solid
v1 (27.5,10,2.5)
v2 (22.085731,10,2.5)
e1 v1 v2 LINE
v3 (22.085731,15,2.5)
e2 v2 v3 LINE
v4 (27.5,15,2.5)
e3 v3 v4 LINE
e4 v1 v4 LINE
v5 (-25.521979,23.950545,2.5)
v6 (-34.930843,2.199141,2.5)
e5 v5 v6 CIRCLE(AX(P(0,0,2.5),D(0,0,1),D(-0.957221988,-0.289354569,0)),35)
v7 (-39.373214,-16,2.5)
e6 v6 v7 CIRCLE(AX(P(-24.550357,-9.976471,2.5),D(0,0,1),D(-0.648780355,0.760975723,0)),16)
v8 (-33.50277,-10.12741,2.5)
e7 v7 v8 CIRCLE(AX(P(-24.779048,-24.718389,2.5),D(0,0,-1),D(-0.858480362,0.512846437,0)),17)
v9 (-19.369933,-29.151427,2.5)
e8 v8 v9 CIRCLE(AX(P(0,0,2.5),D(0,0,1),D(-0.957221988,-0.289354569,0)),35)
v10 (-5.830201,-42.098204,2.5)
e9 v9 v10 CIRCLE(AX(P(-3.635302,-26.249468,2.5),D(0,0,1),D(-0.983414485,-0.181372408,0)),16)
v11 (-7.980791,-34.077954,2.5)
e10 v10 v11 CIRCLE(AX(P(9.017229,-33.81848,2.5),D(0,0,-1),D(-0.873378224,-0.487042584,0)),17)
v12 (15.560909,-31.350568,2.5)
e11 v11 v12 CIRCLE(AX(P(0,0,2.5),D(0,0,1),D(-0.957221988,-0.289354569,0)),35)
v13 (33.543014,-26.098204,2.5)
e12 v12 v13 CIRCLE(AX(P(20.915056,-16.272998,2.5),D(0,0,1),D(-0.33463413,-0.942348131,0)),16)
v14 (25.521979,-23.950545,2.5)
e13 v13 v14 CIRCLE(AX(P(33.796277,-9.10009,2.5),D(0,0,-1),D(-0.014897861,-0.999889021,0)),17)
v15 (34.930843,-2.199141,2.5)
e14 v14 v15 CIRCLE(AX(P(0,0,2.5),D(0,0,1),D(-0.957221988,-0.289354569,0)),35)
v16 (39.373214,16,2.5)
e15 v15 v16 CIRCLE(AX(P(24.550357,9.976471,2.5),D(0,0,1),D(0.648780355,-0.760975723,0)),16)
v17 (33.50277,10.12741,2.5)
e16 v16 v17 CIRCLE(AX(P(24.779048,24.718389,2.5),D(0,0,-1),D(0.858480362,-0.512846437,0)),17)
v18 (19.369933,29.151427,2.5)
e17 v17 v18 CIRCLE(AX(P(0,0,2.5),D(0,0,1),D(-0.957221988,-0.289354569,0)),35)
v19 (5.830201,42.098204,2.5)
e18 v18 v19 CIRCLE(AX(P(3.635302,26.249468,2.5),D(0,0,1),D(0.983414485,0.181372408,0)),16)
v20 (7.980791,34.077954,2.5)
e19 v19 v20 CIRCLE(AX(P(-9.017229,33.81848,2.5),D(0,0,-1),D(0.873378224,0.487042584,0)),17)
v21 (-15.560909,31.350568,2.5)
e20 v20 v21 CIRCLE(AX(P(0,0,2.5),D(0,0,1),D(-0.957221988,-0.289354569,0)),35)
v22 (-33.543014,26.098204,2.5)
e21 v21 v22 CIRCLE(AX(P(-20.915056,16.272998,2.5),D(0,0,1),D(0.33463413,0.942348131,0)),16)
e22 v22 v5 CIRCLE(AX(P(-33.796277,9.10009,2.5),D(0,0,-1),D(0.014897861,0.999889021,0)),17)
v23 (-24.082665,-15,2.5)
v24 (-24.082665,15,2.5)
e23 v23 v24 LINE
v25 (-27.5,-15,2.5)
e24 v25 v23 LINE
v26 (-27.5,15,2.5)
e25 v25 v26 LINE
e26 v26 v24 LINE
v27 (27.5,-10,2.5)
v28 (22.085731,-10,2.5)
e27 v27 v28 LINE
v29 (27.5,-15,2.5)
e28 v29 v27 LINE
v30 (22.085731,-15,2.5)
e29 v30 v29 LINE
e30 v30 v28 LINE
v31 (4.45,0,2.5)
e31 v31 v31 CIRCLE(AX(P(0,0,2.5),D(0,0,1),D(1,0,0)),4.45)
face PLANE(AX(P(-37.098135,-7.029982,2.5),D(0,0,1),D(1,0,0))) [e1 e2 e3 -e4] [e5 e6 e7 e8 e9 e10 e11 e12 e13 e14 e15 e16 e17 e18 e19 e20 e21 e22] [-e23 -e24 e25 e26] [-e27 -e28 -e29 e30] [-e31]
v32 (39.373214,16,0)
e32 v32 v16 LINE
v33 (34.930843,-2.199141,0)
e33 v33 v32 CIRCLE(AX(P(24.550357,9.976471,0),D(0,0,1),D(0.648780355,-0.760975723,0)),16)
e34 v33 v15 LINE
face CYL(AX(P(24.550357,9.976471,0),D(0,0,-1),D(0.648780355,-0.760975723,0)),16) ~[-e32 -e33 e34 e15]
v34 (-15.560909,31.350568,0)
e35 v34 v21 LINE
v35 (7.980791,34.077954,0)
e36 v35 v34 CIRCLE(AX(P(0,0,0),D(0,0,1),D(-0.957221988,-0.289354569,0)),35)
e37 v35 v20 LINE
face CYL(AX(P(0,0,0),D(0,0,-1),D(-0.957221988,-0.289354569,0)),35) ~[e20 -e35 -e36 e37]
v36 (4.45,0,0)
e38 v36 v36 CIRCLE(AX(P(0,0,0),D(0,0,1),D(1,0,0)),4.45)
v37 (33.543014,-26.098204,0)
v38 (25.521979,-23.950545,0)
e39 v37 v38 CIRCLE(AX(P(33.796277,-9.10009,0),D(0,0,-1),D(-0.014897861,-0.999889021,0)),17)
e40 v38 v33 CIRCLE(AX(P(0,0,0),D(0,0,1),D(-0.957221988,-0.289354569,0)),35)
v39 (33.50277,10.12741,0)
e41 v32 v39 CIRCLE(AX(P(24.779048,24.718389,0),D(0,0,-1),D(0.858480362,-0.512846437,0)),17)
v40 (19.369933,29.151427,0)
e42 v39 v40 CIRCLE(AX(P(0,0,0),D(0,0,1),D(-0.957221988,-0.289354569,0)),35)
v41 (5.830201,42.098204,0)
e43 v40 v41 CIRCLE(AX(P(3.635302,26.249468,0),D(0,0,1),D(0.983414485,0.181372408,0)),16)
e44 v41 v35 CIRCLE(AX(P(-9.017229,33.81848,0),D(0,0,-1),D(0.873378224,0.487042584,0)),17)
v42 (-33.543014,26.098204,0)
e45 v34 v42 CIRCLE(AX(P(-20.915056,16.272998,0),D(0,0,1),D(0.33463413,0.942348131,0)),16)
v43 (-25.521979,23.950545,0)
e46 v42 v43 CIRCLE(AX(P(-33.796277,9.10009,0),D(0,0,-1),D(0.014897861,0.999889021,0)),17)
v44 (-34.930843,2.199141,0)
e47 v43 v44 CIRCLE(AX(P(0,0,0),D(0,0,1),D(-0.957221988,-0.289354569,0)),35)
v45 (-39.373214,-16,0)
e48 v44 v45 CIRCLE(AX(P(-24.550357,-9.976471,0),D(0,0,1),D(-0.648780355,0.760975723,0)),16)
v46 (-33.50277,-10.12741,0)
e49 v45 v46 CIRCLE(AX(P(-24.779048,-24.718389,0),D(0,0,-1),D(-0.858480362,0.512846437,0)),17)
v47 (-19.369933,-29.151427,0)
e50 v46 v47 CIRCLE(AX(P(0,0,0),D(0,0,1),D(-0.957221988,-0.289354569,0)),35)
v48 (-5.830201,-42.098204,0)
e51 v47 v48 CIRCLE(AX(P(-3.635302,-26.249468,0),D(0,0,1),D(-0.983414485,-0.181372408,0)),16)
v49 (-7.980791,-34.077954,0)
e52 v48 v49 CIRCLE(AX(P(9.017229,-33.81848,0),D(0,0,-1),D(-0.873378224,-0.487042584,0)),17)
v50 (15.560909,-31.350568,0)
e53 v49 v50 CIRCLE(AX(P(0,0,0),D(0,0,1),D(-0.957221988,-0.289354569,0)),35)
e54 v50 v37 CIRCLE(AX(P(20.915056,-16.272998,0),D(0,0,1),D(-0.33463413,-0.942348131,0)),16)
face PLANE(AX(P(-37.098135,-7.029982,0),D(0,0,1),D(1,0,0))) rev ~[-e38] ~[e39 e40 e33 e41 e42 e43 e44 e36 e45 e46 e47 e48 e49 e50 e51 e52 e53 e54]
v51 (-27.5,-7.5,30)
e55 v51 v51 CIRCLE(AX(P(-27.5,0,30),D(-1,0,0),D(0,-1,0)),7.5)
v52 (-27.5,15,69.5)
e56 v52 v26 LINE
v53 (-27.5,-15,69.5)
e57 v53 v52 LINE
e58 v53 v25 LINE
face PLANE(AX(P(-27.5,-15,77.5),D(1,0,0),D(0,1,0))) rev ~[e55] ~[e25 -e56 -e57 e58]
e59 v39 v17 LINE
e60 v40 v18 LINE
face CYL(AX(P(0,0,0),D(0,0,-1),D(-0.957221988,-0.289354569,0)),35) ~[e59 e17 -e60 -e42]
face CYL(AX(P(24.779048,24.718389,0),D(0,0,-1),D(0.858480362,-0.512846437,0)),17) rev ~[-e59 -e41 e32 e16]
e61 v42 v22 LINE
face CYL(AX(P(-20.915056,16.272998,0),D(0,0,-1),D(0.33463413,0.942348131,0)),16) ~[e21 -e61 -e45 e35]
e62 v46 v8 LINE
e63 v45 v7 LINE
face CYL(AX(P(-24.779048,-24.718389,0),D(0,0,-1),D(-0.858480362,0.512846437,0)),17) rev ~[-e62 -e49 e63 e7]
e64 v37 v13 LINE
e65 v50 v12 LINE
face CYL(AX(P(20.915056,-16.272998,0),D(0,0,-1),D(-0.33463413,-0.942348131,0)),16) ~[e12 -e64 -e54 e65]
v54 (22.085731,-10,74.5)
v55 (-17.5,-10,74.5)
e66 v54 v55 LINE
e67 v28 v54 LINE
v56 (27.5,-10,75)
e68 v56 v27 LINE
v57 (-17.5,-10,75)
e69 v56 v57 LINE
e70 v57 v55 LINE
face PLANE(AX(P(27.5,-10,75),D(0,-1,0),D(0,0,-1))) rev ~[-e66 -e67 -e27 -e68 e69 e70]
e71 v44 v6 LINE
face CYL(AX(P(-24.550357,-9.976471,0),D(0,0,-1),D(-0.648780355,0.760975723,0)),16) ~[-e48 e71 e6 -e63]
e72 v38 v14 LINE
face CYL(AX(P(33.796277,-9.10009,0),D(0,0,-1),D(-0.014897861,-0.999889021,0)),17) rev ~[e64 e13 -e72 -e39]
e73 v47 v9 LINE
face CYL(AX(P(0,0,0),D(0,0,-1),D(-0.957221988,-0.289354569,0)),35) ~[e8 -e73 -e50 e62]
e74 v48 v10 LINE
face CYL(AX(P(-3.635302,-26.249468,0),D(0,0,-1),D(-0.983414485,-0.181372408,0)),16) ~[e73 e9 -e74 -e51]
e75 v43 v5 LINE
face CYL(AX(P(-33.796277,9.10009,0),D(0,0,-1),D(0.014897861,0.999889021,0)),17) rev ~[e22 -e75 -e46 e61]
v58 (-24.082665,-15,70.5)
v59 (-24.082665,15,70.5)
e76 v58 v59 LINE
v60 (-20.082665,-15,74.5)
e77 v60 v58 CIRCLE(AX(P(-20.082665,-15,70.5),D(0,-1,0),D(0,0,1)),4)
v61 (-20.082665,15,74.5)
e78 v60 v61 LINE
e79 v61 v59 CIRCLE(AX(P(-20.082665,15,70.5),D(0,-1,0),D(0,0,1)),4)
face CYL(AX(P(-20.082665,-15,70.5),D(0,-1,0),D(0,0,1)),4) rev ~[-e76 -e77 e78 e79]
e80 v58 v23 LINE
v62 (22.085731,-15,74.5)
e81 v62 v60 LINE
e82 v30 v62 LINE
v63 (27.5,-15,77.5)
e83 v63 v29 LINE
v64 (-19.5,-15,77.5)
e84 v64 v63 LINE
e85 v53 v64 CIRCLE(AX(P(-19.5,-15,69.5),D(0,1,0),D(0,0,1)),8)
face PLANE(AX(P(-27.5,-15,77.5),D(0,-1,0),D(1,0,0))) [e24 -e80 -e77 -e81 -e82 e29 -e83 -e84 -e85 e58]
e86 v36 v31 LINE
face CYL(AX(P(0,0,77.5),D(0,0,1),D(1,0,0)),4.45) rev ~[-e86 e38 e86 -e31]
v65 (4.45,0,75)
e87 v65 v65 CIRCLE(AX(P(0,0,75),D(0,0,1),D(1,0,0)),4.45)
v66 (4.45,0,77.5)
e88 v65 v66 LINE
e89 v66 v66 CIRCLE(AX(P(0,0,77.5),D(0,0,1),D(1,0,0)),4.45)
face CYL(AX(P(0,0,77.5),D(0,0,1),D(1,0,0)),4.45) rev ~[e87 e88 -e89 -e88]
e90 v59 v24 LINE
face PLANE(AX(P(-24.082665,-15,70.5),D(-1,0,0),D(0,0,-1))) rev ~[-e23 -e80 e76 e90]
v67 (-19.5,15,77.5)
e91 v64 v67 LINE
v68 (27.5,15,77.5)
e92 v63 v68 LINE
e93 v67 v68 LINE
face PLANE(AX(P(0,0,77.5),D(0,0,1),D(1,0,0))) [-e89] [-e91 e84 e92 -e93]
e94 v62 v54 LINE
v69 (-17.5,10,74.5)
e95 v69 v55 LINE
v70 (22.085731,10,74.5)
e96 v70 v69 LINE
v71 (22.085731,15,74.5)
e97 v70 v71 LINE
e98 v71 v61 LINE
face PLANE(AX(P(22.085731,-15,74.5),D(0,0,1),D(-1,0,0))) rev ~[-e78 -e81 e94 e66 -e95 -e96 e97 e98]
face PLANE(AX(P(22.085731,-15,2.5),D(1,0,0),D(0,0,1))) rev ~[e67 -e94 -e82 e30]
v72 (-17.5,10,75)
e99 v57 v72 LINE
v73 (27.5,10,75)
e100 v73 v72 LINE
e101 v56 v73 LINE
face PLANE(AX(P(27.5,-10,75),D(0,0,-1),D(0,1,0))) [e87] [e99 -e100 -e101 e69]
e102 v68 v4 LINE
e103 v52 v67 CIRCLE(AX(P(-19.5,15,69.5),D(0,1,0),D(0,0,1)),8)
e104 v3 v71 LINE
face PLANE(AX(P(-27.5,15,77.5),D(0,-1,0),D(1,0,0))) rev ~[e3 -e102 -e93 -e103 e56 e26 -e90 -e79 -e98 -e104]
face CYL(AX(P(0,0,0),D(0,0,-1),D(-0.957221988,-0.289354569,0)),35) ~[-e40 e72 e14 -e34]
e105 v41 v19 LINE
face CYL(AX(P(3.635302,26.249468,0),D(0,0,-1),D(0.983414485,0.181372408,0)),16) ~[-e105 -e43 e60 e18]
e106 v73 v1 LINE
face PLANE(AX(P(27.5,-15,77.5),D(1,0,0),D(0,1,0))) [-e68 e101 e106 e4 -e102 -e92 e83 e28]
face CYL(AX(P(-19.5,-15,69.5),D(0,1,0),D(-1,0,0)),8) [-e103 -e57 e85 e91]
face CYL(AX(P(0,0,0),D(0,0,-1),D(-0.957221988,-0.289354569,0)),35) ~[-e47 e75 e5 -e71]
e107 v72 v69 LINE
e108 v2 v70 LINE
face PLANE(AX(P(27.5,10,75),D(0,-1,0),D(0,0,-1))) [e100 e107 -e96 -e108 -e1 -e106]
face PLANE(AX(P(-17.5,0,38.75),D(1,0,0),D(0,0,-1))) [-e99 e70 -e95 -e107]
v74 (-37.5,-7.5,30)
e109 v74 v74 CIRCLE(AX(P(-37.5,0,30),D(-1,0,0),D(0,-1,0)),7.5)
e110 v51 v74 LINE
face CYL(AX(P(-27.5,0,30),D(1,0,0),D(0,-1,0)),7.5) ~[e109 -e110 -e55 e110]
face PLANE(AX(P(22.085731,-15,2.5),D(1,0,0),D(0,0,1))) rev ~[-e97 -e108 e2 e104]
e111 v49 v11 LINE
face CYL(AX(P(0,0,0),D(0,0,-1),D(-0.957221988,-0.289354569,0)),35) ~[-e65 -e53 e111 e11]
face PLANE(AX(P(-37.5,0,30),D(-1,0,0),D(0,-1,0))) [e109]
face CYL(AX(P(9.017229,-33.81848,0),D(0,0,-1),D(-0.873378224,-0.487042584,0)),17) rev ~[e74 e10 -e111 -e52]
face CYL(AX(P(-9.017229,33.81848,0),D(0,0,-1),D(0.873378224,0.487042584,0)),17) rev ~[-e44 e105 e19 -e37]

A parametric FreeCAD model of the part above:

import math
import FreeCAD as App
import Part
import Sketcher


def edges_at(feature, points):
    """Names of the edges that pass closest to the given points."""
    edges = feature.Shape.Edges
    near = lambda p: min(range(len(edges)), key=lambda i: edges[i].distToShape(Part.Vertex(*p))[0])
    return sorted({f"Edge{near(p) + 1}" for p in points})


def add_polygon(sketch, points):
    """Adds a closed chain of lines whose ends are joined by coincident constraints."""
    first, n = sketch.GeometryCount, len(points)
    for a, b in zip(points, points[1:] + points[:1]):
        sketch.addGeometry(Part.LineSegment(App.Vector(*a, 0), App.Vector(*b, 0)), False)
    for i in range(n):
        sketch.addConstraint(Sketcher.Constraint("Coincident", first + i, 2, first + (i + 1) % n, 1))

doc = App.newDocument("Part")
params = doc.addObject("Spreadsheet::Sheet", "Params")
for row, (alias, value) in enumerate([
    ("sketch1_radius", "16 mm"),
    ("sketch1_radius2", "17 mm"),
    ("sketch1_radius3", "35 mm"),
    ("pad1_length", "2.5 mm"),
    ("sketch2_diameter", "8.9 mm"),
    ("pocket1_length", "10 mm"),
    ("sketch3_diameter", "8.9 mm"),
    ("sketch3_width", "55 mm"),
    ("sketch3_height", "30 mm"),
    ("pad2_length", "75 mm"),
    ("sketch4_width", "20 mm"),
    ("sketch4_height", "72.5 mm"),
    ("pocket2_length", "45 mm"),
    ("sketch5_diameter", "15 mm"),
    ("pad3_length", "10 mm"),
    ("sketch6_radius", "4 mm"),
    ("sketch6_height", "68 mm"),
    ("pocket3_length", "30 mm"),
    ("fillet_radius", "8 mm"),
], start=1):
    params.set(f"A{row}", alias)
    params.set(f"B{row}", "=" + value)
    params.setAlias(f"B{row}", alias)

body = doc.addObject("PartDesign::Body", "Body")

sketch1 = body.newObject("Sketcher::SketchObject", "Sketch")
sketch1.AttachmentSupport = (doc.getObject("XY_Plane"), [""])
sketch1.MapMode = "FlatFace"
sketch1.addGeometry([
    Part.ArcOfCircle(Part.Circle(App.Vector(-25, -10, 0), App.Vector(0, 0, 1), 16), math.radians(130), math.radians(202)),
    Part.ArcOfCircle(Part.Circle(App.Vector(-25, -25, 0), App.Vector(0, 0, 1), 17), math.radians(121), math.radians(149)),
    Part.ArcOfCircle(Part.Circle(App.Vector(0, 0, 0), App.Vector(0, 0, 1), 35), math.radians(-163), math.radians(-124)),
    Part.ArcOfCircle(Part.Circle(App.Vector(-4, -26, 0), App.Vector(0, 0, 1), 16), math.radians(-170), math.radians(-98)),
    Part.ArcOfCircle(Part.Circle(App.Vector(9, -34, 0), App.Vector(0, 0, 1), 17), math.radians(-179), math.radians(-151)),
    Part.ArcOfCircle(Part.Circle(App.Vector(0, 0, 0), App.Vector(0, 0, 1), 35), math.radians(-103), math.radians(-64)),
    Part.ArcOfCircle(Part.Circle(App.Vector(21, -16, 0), App.Vector(0, 0, 1), 16), math.radians(-110), math.radians(-38)),
    Part.ArcOfCircle(Part.Circle(App.Vector(34, -9, 0), App.Vector(0, 0, 1), 17), math.radians(-119), math.radians(-91)),
    Part.ArcOfCircle(Part.Circle(App.Vector(0, 0, 0), App.Vector(0, 0, 1), 35), math.radians(-43), math.radians(-4)),
    Part.ArcOfCircle(Part.Circle(App.Vector(25, 10, 0), App.Vector(0, 0, 1), 16), math.radians(-50), math.radians(22)),
    Part.ArcOfCircle(Part.Circle(App.Vector(25, 25, 0), App.Vector(0, 0, 1), 17), math.radians(-59), math.radians(-31)),
    Part.ArcOfCircle(Part.Circle(App.Vector(0, 0, 0), App.Vector(0, 0, 1), 35), math.radians(17), math.radians(56)),
    Part.ArcOfCircle(Part.Circle(App.Vector(4, 26, 0), App.Vector(0, 0, 1), 16), math.radians(10), math.radians(82)),
    Part.ArcOfCircle(Part.Circle(App.Vector(-9, 34, 0), App.Vector(0, 0, 1), 17), math.radians(1), math.radians(29)),
    Part.ArcOfCircle(Part.Circle(App.Vector(0, 0, 0), App.Vector(0, 0, 1), 35), math.radians(77), math.radians(116)),
    Part.ArcOfCircle(Part.Circle(App.Vector(-21, 16, 0), App.Vector(0, 0, 1), 16), math.radians(70), math.radians(142)),
    Part.ArcOfCircle(Part.Circle(App.Vector(-34, 9, 0), App.Vector(0, 0, 1), 17), math.radians(61), math.radians(89)),
    Part.ArcOfCircle(Part.Circle(App.Vector(0, 0, 0), App.Vector(0, 0, 1), 35), math.radians(137), math.radians(176)),
], False)
sketch1.addConstraint([
    Sketcher.Constraint("Coincident", 0, 2, 1, 2),
    Sketcher.Constraint("Coincident", 1, 1, 2, 1),
    Sketcher.Constraint("Coincident", 2, 2, 3, 1),
    Sketcher.Constraint("Coincident", 3, 2, 4, 2),
    Sketcher.Constraint("Coincident", 4, 1, 5, 1),
    Sketcher.Constraint("Coincident", 5, 2, 6, 1),
    Sketcher.Constraint("Coincident", 6, 2, 7, 2),
    Sketcher.Constraint("Coincident", 7, 1, 8, 1),
    Sketcher.Constraint("Coincident", 8, 2, 9, 1),
    Sketcher.Constraint("Coincident", 9, 2, 10, 2),
    Sketcher.Constraint("Coincident", 10, 1, 11, 1),
    Sketcher.Constraint("Coincident", 11, 2, 12, 1),
    Sketcher.Constraint("Coincident", 12, 2, 13, 2),
    Sketcher.Constraint("Coincident", 13, 1, 14, 1),
    Sketcher.Constraint("Coincident", 14, 2, 15, 1),
    Sketcher.Constraint("Coincident", 15, 2, 16, 2),
    Sketcher.Constraint("Coincident", 16, 1, 17, 1),
    Sketcher.Constraint("Coincident", 17, 2, 0, 1),
    Sketcher.Constraint("Coincident", 2, 3, -1, 1),
    Sketcher.Constraint("Coincident", 5, 3, -1, 1),
    Sketcher.Constraint("Coincident", 8, 3, -1, 1),
    Sketcher.Constraint("Coincident", 11, 3, -1, 1),
    Sketcher.Constraint("Coincident", 14, 3, -1, 1),
    Sketcher.Constraint("Coincident", 17, 3, -1, 1),
    Sketcher.Constraint("Equal", 0, 3),
    Sketcher.Constraint("Equal", 1, 4),
    Sketcher.Constraint("Equal", 2, 5),
    Sketcher.Constraint("Equal", 3, 6),
    Sketcher.Constraint("Equal", 4, 7),
    Sketcher.Constraint("Equal", 5, 8),
    Sketcher.Constraint("Equal", 6, 9),
    Sketcher.Constraint("Equal", 7, 10),
    Sketcher.Constraint("Equal", 8, 11),
    Sketcher.Constraint("Equal", 9, 12),
    Sketcher.Constraint("Equal", 10, 13),
    Sketcher.Constraint("Equal", 11, 14),
    Sketcher.Constraint("Equal", 12, 15),
    Sketcher.Constraint("Equal", 13, 16),
    Sketcher.Constraint("Equal", 14, 17),
    Sketcher.Constraint("Symmetric", 0, 3, 9, 3, -1, 1),
    Sketcher.Constraint("Symmetric", 1, 3, 10, 3, -1, 1),
    Sketcher.Constraint("Symmetric", 3, 3, 12, 3, -1, 1),
    Sketcher.Constraint("Symmetric", 4, 3, 13, 3, -1, 1),
    Sketcher.Constraint("Symmetric", 6, 3, 15, 3, -1, 1),
    Sketcher.Constraint("Symmetric", 7, 3, 16, 3, -1, 1),
    Sketcher.Constraint("Radius", 0, 16.0),
    Sketcher.Constraint("Radius", 1, 17.0),
    Sketcher.Constraint("Radius", 2, 35.0),
    Sketcher.Constraint("DistanceY", 0, 2, -1, 1, 16.0),
    Sketcher.Constraint("DistanceX", 3, 3, -1, 1, 3.635302),
    Sketcher.Constraint("DistanceX", 3, 2, -1, 1, 5.830201),
    Sketcher.Constraint("DistanceX", 6, 3, 9, 3, 3.635302),
    Sketcher.Constraint("DistanceY", 1, 1, 16, 3, 19.2275),
    Sketcher.Constraint("DistanceY", 5, 2, 3, 3, 5.101099),
    Sketcher.Constraint("DistanceX", 4, 1, 5, 2, 23.5417),
    Sketcher.Constraint("DistanceX", 7, 1, 7, 3, 8.274298),
    Sketcher.Constraint("DistanceY", 0, 3, -1, 1, 9.976471),
    Sketcher.Constraint("DistanceX", 1, 3, -1, 1, 24.779048),
    Sketcher.Constraint("DistanceY", 1, 3, -1, 1, 24.718389),
    Sketcher.Constraint("DistanceY", 3, 3, -1, 1, 26.249468),
])
sketch1.setExpression("Constraints[45]", "Params.sketch1_radius")
sketch1.setExpression("Constraints[46]", "Params.sketch1_radius2")
sketch1.setExpression("Constraints[47]", "Params.sketch1_radius3")
pad1 = body.newObject("PartDesign::Pad", "Pad")
pad1.Profile = sketch1
pad1.setExpression("Length", "Params.pad1_length")

sketch2 = body.newObject("Sketcher::SketchObject", "Sketch001")
sketch2.AttachmentSupport = (doc.getObject("XY_Plane"), [""])
sketch2.MapMode = "FlatFace"
sketch2.AttachmentOffset = App.Placement(App.Vector(0, 0, 2.5), App.Rotation())
sketch2.addGeometry(Part.Circle(App.Vector(0, 0, 0), App.Vector(0, 0, 1), 4.5), False)
sketch2.addConstraint([
    Sketcher.Constraint("Coincident", 0, 3, -1, 1),
    Sketcher.Constraint("Diameter", 0, 8.9),
])
sketch2.setExpression("Constraints[1]", "Params.sketch2_diameter")
pocket1 = body.newObject("PartDesign::Pocket", "Pocket")
pocket1.Profile = sketch2
pocket1.setExpression("Length", "Params.pocket1_length")

sketch3 = body.newObject("Sketcher::SketchObject", "Sketch002")
sketch3.AttachmentSupport = (doc.getObject("XY_Plane"), [""])
sketch3.MapMode = "FlatFace"
sketch3.AttachmentOffset = App.Placement(App.Vector(0, 0, 77.5), App.Rotation())
add_polygon(sketch3, [(-27.5, 15), (-27.5, -15), (27.5, -15), (27.5, 15)])
sketch3.addGeometry(Part.Circle(App.Vector(0, 0, 0), App.Vector(0, 0, 1), 4.5), False)
sketch3.addConstraint([
    Sketcher.Constraint("Vertical", 0),
    Sketcher.Constraint("Horizontal", 1),
    Sketcher.Constraint("Vertical", 2),
    Sketcher.Constraint("Horizontal", 3),
    Sketcher.Constraint("Coincident", 4, 3, -1, 1),
    Sketcher.Constraint("Symmetric", 0, 2, 2, 2, -1, 1),
    Sketcher.Constraint("Diameter", 4, 8.9),
    Sketcher.Constraint("DistanceX", 1, 1, 1, 2, 55.0),
    Sketcher.Constraint("DistanceY", 0, 2, 0, 1, 30.0),
])
sketch3.setExpression("Constraints[10]", "Params.sketch3_diameter")
sketch3.setExpression("Constraints[11]", "Params.sketch3_width")
sketch3.setExpression("Constraints[12]", "Params.sketch3_height")
pad2 = body.newObject("PartDesign::Pad", "Pad001")
pad2.Profile = sketch3
pad2.setExpression("Length", "Params.pad2_length")
pad2.Reversed = True

sketch4 = body.newObject("Sketcher::SketchObject", "Sketch003")
sketch4.AttachmentSupport = (doc.getObject("YZ_Plane"), [""])
sketch4.MapMode = "FlatFace"
sketch4.AttachmentOffset = App.Placement(App.Vector(0, 0, 27.5), App.Rotation())
add_polygon(sketch4, [(10, 75), (-10, 75), (-10, 2), (10, 2)])
sketch4.addConstraint([
    Sketcher.Constraint("Horizontal", 0),
    Sketcher.Constraint("Vertical", 1),
    Sketcher.Constraint("Horizontal", 2),
    Sketcher.Constraint("Vertical", 3),
    Sketcher.Constraint("DistanceX", 0, 2, 0, 1, 20.0),
    Sketcher.Constraint("DistanceY", 1, 2, 1, 1, 72.5),
    Sketcher.Constraint("DistanceX", 0, 2, -1, 1, 10.0),
    Sketcher.Constraint("DistanceY", -1, 1, 0, 2, 75.0),
])
sketch4.setExpression("Constraints[8]", "Params.sketch4_width")
sketch4.setExpression("Constraints[9]", "Params.sketch4_height")
pocket2 = body.newObject("PartDesign::Pocket", "Pocket001")
pocket2.Profile = sketch4
pocket2.setExpression("Length", "Params.pocket2_length")

sketch5 = body.newObject("Sketcher::SketchObject", "Sketch004")
sketch5.AttachmentSupport = (doc.getObject("YZ_Plane"), [""])
sketch5.MapMode = "FlatFace"
sketch5.AttachmentOffset = App.Placement(App.Vector(0, 0, -27.5), App.Rotation())
sketch5.addGeometry(Part.Circle(App.Vector(0, 30, 0), App.Vector(0, 0, 1), 8), False)
sketch5.addConstraint([
    Sketcher.Constraint("PointOnObject", 0, 3, -2),
    Sketcher.Constraint("Diameter", 0, 15.0),
    Sketcher.Constraint("DistanceY", -1, 1, 0, 3, 30.0),
])
sketch5.setExpression("Constraints[1]", "Params.sketch5_diameter")
pad3 = body.newObject("PartDesign::Pad", "Pad002")
pad3.Profile = sketch5
pad3.setExpression("Length", "Params.pad3_length")
pad3.Reversed = True

sketch6 = body.newObject("Sketcher::SketchObject", "Sketch005")
sketch6.AttachmentSupport = (doc.getObject("XZ_Plane"), [""])
sketch6.MapMode = "FlatFace"
sketch6.AttachmentOffset = App.Placement(App.Vector(0, 0, 15), App.Rotation())
sketch6.addGeometry([
    Part.LineSegment(App.Vector(-24.1, 70.5, 0), App.Vector(-24.1, 2.5, 0)),
    Part.LineSegment(App.Vector(-24.1, 2.5, 0), App.Vector(22.1, 2.5, 0)),
    Part.LineSegment(App.Vector(22.1, 2.5, 0), App.Vector(22.1, 74.5, 0)),
    Part.LineSegment(App.Vector(22.1, 74.5, 0), App.Vector(-20.1, 74.5, 0)),
    Part.ArcOfCircle(Part.Circle(App.Vector(-20.1, 70.5, 0), App.Vector(0, 0, 1), 4), math.radians(90), math.radians(180)),
], False)
sketch6.addConstraint([
    Sketcher.Constraint("Coincident", 0, 2, 1, 1),
    Sketcher.Constraint("Coincident", 1, 2, 2, 1),
    Sketcher.Constraint("Coincident", 2, 2, 3, 1),
    Sketcher.Constraint("Tangent", 3, 2, 4, 1),
    Sketcher.Constraint("Tangent", 4, 2, 0, 1),
    Sketcher.Constraint("Vertical", 0),
    Sketcher.Constraint("Horizontal", 1),
    Sketcher.Constraint("Vertical", 2),
    Sketcher.Constraint("Horizontal", 3),
    Sketcher.Constraint("Radius", 4, 4.0),
    Sketcher.Constraint("DistanceY", 0, 2, 0, 1, 68.0),
    Sketcher.Constraint("DistanceY", -1, 1, 4, 3, 70.5),
    Sketcher.Constraint("DistanceX", 1, 1, 1, 2, 46.168396),
    Sketcher.Constraint("DistanceX", -1, 1, 1, 2, 22.085731),
])
sketch6.setExpression("Constraints[9]", "Params.sketch6_radius")
sketch6.setExpression("Constraints[10]", "Params.sketch6_height")
pocket3 = body.newObject("PartDesign::Pocket", "Pocket002")
pocket3.Profile = sketch6
pocket3.setExpression("Length", "Params.pocket3_length")
doc.recompute()

fillet = body.newObject("PartDesign::Fillet", "Fillet")
fillet.Base = (pocket3, edges_at(pocket3, [(-27.5, 0, 77.5)]))
fillet.setExpression("Radius", "Params.fillet_radius")

doc.recompute()
